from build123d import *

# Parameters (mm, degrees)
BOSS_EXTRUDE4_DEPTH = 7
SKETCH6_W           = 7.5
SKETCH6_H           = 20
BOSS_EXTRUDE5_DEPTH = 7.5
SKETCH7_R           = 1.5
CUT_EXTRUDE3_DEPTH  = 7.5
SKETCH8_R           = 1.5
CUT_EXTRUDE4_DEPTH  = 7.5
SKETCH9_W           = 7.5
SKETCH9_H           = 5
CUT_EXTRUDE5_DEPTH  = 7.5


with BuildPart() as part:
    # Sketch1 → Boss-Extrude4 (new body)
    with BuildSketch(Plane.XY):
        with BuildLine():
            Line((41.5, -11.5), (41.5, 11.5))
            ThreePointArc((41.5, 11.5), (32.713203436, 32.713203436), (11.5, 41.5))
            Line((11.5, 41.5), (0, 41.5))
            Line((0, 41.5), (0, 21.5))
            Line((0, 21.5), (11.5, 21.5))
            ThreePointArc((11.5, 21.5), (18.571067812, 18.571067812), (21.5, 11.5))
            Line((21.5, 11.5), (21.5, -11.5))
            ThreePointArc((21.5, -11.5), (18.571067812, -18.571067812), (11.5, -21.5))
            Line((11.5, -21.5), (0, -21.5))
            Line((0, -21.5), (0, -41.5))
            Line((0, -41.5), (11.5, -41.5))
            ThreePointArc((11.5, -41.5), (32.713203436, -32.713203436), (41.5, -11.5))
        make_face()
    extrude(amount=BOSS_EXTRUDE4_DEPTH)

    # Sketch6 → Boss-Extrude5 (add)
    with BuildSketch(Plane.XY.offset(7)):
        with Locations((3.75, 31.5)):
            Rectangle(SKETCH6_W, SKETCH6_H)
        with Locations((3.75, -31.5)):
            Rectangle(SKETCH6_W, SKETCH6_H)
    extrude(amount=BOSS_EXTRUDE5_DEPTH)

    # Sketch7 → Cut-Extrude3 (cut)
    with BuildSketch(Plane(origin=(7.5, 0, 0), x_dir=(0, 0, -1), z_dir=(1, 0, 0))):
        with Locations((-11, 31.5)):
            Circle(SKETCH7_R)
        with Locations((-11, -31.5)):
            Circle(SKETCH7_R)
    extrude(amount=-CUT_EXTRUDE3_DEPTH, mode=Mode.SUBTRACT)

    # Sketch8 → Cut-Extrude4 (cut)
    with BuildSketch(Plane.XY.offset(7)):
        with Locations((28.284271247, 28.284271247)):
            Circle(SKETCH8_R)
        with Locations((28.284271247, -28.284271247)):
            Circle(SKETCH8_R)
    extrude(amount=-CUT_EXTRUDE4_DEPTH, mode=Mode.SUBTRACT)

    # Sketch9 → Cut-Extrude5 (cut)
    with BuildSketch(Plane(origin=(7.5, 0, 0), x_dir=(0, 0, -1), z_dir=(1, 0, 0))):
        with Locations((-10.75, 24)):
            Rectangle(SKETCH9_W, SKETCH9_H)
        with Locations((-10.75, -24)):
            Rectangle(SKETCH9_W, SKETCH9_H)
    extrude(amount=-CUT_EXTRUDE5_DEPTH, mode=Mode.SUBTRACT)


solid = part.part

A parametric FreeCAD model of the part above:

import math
import FreeCAD as App
import Part
import Sketcher


def add_polygon(sketch, points):
    """Adds a closed chain of lines whose ends are joined by coincident constraints."""
    first, n = sketch.GeometryCount, len(points)
    for a, b in zip(points, points[1:] + points[:1]):
        sketch.addGeometry(Part.LineSegment(App.Vector(*a, 0), App.Vector(*b, 0)), False)
    for i in range(n):
        sketch.addConstraint(Sketcher.Constraint("Coincident", first + i, 2, first + (i + 1) % n, 1))

doc = App.newDocument("Part")
body = doc.addObject("PartDesign::Body", "Body")

# Sketch on XY plane
sketch1 = body.newObject("Sketcher::SketchObject", "Sketch")
sketch1.AttachmentSupport = (doc.getObject("XY_Plane"), [""])
sketch1.MapMode = "FlatFace"
sketch1.addGeometry([
    Part.LineSegment(App.Vector(41.5, -11.5, 0), App.Vector(41.5, 11.5, 0)),  # 0
    Part.ArcOfCircle(Part.Circle(App.Vector(11.5, 11.5, 0), App.Vector(0, 0, 1), 30), math.radians(0), math.radians(90)),  # 1
    Part.LineSegment(App.Vector(11.5, 41.5, 0), App.Vector(0, 41.5, 0)),  # 2
    Part.LineSegment(App.Vector(0, 41.5, 0), App.Vector(0, 21.5, 0)),  # 3
    Part.LineSegment(App.Vector(0, 21.5, 0), App.Vector(11.5, 21.5, 0)),  # 4
    Part.ArcOfCircle(Part.Circle(App.Vector(11.5, 11.5, 0), App.Vector(0, 0, 1), 10), math.radians(0), math.radians(90)),  # 5
    Part.LineSegment(App.Vector(21.5, 11.5, 0), App.Vector(21.5, -11.5, 0)),  # 6
    Part.ArcOfCircle(Part.Circle(App.Vector(11.5, -11.5, 0), App.Vector(0, 0, 1), 10), math.radians(-90), math.radians(0)),  # 7
    Part.LineSegment(App.Vector(11.5, -21.5, 0), App.Vector(0, -21.5, 0)),  # 8
    Part.LineSegment(App.Vector(0, -21.5, 0), App.Vector(0, -41.5, 0)),  # 9
    Part.LineSegment(App.Vector(0, -41.5, 0), App.Vector(11.5, -41.5, 0)),  # 10
    Part.ArcOfCircle(Part.Circle(App.Vector(11.5, -11.5, 0), App.Vector(0, 0, 1), 30), math.radians(-90), math.radians(0)),  # 11
], False)
sketch1.addConstraint([
    Sketcher.Constraint("Tangent", 0, 2, 1, 1),
    Sketcher.Constraint("Tangent", 1, 2, 2, 1),
    Sketcher.Constraint("Coincident", 2, 2, 3, 1),
    Sketcher.Constraint("Coincident", 3, 2, 4, 1),
    Sketcher.Constraint("Tangent", 4, 2, 5, 2),
    Sketcher.Constraint("Tangent", 5, 1, 6, 1),
    Sketcher.Constraint("Tangent", 6, 2, 7, 2),
    Sketcher.Constraint("Tangent", 7, 1, 8, 1),
    Sketcher.Constraint("Coincident", 8, 2, 9, 1),
    Sketcher.Constraint("Coincident", 9, 2, 10, 1),
    Sketcher.Constraint("Tangent", 10, 2, 11, 1),
    Sketcher.Constraint("Tangent", 11, 2, 0, 1),
    Sketcher.Constraint("Vertical", 0),
    Sketcher.Constraint("Horizontal", 2),
    Sketcher.Constraint("Vertical", 3),
    Sketcher.Constraint("Horizontal", 4),
    Sketcher.Constraint("Vertical", 6),
    Sketcher.Constraint("Horizontal", 8),
    Sketcher.Constraint("Vertical", 9),
    Sketcher.Constraint("Horizontal", 10),
    Sketcher.Constraint("Coincident", 5, 3, 1, 3),
    Sketcher.Constraint("Coincident", 11, 3, 7, 3),
    Sketcher.Constraint("Equal", 5, 7),
    Sketcher.Constraint("Symmetric", 3, 2, 8, 2, -1, 1),
    Sketcher.Constraint("PointOnObject", 2, 2, -2),
    Sketcher.Constraint("Radius", 1, 30.0),
    Sketcher.Constraint("Radius", 5, 10.0),
    Sketcher.Constraint("DistanceY", 0, 1, 0, 2, 23.0),
    Sketcher.Constraint("DistanceX", 2, 2, 2, 1, 11.5),
])
pad1 = body.newObject("PartDesign::Pad", "Pad")
pad1.Profile = sketch1
pad1.Length = 7

# Sketch on XY plane
sketch2 = body.newObject("Sketcher::SketchObject", "Sketch001")
sketch2.AttachmentSupport = (doc.getObject("XY_Plane"), [""])
sketch2.MapMode = "FlatFace"
sketch2.AttachmentOffset = App.Placement(App.Vector(0, 0, 7), App.Rotation())
add_polygon(sketch2, [(0, 41.5), (0, 21.5), (7.5, 21.5), (7.5, 41.5)])  # lines 0-3
add_polygon(sketch2, [(0, -21.5), (0, -41.5), (7.5, -41.5), (7.5, -21.5)])  # lines 4-7
sketch2.addConstraint([
    Sketcher.Constraint("Vertical", 0),
    Sketcher.Constraint("Horizontal", 1),
    Sketcher.Constraint("Vertical", 2),
    Sketcher.Constraint("Horizontal", 3),
    Sketcher.Constraint("Vertical", 4),
    Sketcher.Constraint("Horizontal", 5),
    Sketcher.Constraint("Vertical", 6),
    Sketcher.Constraint("Horizontal", 7),
    Sketcher.Constraint("Symmetric", 3, 2, 4, 2, -1, 1),
    Sketcher.Constraint("Symmetric", 1, 2, 6, 2, -1),
    Sketcher.Constraint("PointOnObject", 0, 2, -2),
    Sketcher.Constraint("DistanceY", 0, 2, 0, 1, 20.0),
    Sketcher.Constraint("DistanceX", 1, 1, 1, 2, 7.5),
    Sketcher.Constraint("DistanceY", 4, 2, 0, 2, 63.0),
])
pad2 = body.newObject("PartDesign::Pad", "Pad001")
pad2.Profile = sketch2
pad2.Length = 7.5

# Sketch on YZ plane
sketch3 = body.newObject("Sketcher::SketchObject", "Sketch002")
sketch3.AttachmentSupport = (doc.getObject("YZ_Plane"), [""])
sketch3.MapMode = "FlatFace"
sketch3.AttachmentOffset = App.Placement(App.Vector(0, 0, 7.5), App.Rotation())
sketch3.addGeometry([
    Part.Circle(App.Vector(31.5, 11, 0), App.Vector(0, 0, 1), 1.5),
    Part.Circle(App.Vector(-31.5, 11, 0), App.Vector(0, 0, 1), 1.5),
], False)
sketch3.addConstraint([
    Sketcher.Constraint("Equal", 0, 1),
    Sketcher.Constraint("Symmetric", 0, 3, 1, 3, -2),
    Sketcher.Constraint("Diameter", 0, 3.0),
    Sketcher.Constraint("DistanceY", -1, 1, 0, 3, 11.0),
    Sketcher.Constraint("DistanceX", 1, 3, 0, 3, 63.0),
])
pocket1 = body.newObject("PartDesign::Pocket", "Pocket")
pocket1.Profile = sketch3
pocket1.Length = 7.5

# Sketch on XY plane
sketch4 = body.newObject("Sketcher::SketchObject", "Sketch003")
sketch4.AttachmentSupport = (doc.getObject("XY_Plane"), [""])
sketch4.MapMode = "FlatFace"
sketch4.AttachmentOffset = App.Placement(App.Vector(0, 0, 7), App.Rotation())
sketch4.addGeometry([
    Part.Circle(App.Vector(28.284271, 28.284271, 0), App.Vector(0, 0, 1), 1.5),
    Part.Circle(App.Vector(28.284271, -28.284271, 0), App.Vector(0, 0, 1), 1.5),
], False)
sketch4.addConstraint([
    Sketcher.Constraint("Equal", 0, 1),
    Sketcher.Constraint("Symmetric", 0, 3, 1, 3, -1),
    Sketcher.Constraint("Diameter", 0, 3.0),
    Sketcher.Constraint("DistanceX", -1, 1, 0, 3, 28.284271),
    Sketcher.Constraint("DistanceY", -1, 1, 0, 3, 28.284271),
])
pocket2 = body.newObject("PartDesign::Pocket", "Pocket001")
pocket2.Profile = sketch4
pocket2.Length = 7.5

# Sketch on YZ plane
sketch5 = body.newObject("Sketcher::SketchObject", "Sketch004")
sketch5.AttachmentSupport = (doc.getObject("YZ_Plane"), [""])
sketch5.MapMode = "FlatFace"
sketch5.AttachmentOffset = App.Placement(App.Vector(0, 0, 7.5), App.Rotation())
add_polygon(sketch5, [(26.5, 14.5), (21.5, 14.5), (21.5, 7), (26.5, 7)])  # lines 0-3
add_polygon(sketch5, [(-21.5, 14.5), (-26.5, 14.5), (-26.5, 7), (-21.5, 7)])  # lines 4-7
sketch5.addConstraint([
    Sketcher.Constraint("Horizontal", 0),
    Sketcher.Constraint("Vertical", 1),
    Sketcher.Constraint("Horizontal", 2),
    Sketcher.Constraint("Vertical", 3),
    Sketcher.Constraint("Horizontal", 4),
    Sketcher.Constraint("Vertical", 5),
    Sketcher.Constraint("Horizontal", 6),
    Sketcher.Constraint("Vertical", 7),
    Sketcher.Constraint("Symmetric", 3, 2, 4, 2, -2),
    Sketcher.Constraint("Symmetric", 1, 2, 6, 2, -2),
    Sketcher.Constraint("DistanceX", 0, 2, 0, 1, 5.0),
    Sketcher.Constraint("DistanceY", 1, 2, 1, 1, 7.5),
    Sketcher.Constraint("DistanceY", -1, 1, 1, 2, 7.0),
    Sketcher.Constraint("DistanceX", 4, 2, 0, 2, 48.0),
])
pocket3 = body.newObject("PartDesign::Pocket", "Pocket002")
pocket3.Profile = sketch5
pocket3.Length = 7.5

doc.recompute()
